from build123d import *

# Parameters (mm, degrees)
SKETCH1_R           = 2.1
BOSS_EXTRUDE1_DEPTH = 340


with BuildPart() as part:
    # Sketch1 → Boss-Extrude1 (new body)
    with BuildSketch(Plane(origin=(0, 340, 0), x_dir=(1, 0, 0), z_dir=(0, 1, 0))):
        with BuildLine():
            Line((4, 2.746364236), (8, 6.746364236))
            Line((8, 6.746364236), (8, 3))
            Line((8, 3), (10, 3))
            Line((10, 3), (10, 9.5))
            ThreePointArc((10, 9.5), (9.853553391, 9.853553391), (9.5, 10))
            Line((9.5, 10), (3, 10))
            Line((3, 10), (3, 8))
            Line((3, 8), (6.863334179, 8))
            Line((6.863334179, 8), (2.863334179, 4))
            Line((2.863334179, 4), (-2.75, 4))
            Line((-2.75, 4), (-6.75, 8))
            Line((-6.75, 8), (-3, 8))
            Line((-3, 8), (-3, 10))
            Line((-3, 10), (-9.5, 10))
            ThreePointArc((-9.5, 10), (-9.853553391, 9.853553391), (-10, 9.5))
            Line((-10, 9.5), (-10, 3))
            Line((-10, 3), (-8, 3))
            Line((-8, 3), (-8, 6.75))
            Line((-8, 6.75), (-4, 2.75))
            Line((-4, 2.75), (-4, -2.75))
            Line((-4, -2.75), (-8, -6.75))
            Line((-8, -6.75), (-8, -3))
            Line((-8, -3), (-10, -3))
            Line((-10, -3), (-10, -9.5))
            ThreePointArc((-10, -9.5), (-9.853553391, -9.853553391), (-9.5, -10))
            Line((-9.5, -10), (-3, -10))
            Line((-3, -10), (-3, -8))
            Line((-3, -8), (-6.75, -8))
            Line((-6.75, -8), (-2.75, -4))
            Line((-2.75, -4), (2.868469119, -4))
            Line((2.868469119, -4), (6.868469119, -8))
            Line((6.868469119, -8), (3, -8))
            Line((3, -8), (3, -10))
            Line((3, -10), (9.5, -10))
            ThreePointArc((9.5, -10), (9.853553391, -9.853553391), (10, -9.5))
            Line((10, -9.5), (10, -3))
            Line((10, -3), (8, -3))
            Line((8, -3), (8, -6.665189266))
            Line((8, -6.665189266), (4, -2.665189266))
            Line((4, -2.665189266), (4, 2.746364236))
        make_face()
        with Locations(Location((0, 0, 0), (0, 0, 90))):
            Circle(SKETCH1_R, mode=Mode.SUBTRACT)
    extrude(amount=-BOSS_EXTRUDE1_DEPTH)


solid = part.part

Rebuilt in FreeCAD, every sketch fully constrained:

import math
import FreeCAD as App
import Part
import Sketcher
from FreeCAD import Vector

doc = App.newDocument("Part")
params = doc.addObject("Spreadsheet::Sheet", "Params")
for row, (alias, value) in enumerate([
    ("sketch1_diameter", "4.2 mm"),
    ("sketch1_radius", "0.5 mm"),
    ("sketch1_width", "2 mm"),
    ("sketch1_width2", "6.5 mm"),
    ("sketch1_height", "5.5 mm"),
    ("pad1_length", "340 mm"),
], start=1):
    params.set(f"A{row}", alias)
    params.set(f"B{row}", "=" + value)
    params.setAlias(f"B{row}", alias)

body = doc.addObject("PartDesign::Body", "Body")

sketch1 = body.newObject("Sketcher::SketchObject", "Sketch")
sketch1.AttachmentSupport = (doc.getObject("XZ_Plane"), [""])
sketch1.MapMode = "FlatFace"
sketch1.AttachmentOffset = App.Placement(Vector(0, 0, -340), App.Rotation())
sketch1.addGeometry([
    Part.LineSegment(Vector(4, -2.75, 0), Vector(8, -6.75, 0)),
    Part.LineSegment(Vector(8, -6.75, 0), Vector(8, -3, 0)),
    Part.LineSegment(Vector(8, -3, 0), Vector(10, -3, 0)),
    Part.LineSegment(Vector(10, -3, 0), Vector(10, -9.5, 0)),
    Part.ArcOfCircle(Part.Circle(Vector(9.5, -9.5, 0), Vector(0, 0, 1), 0.5), math.radians(-90), math.radians(0)),
    Part.LineSegment(Vector(9.5, -10, 0), Vector(3, -10, 0)),
    Part.LineSegment(Vector(3, -10, 0), Vector(3, -8, 0)),
    Part.LineSegment(Vector(3, -8, 0), Vector(6.86, -8, 0)),
    Part.LineSegment(Vector(6.86, -8, 0), Vector(2.86, -4, 0)),
    Part.LineSegment(Vector(2.86, -4, 0), Vector(-2.75, -4, 0)),
    Part.LineSegment(Vector(-2.75, -4, 0), Vector(-6.75, -8, 0)),
    Part.LineSegment(Vector(-6.75, -8, 0), Vector(-3, -8, 0)),
    Part.LineSegment(Vector(-3, -8, 0), Vector(-3, -10, 0)),
    Part.LineSegment(Vector(-3, -10, 0), Vector(-9.5, -10, 0)),
    Part.ArcOfCircle(Part.Circle(Vector(-9.5, -9.5, 0), Vector(0, 0, 1), 0.5), math.radians(180), math.radians(270)),
    Part.LineSegment(Vector(-10, -9.5, 0), Vector(-10, -3, 0)),
    Part.LineSegment(Vector(-10, -3, 0), Vector(-8, -3, 0)),
    Part.LineSegment(Vector(-8, -3, 0), Vector(-8, -6.75, 0)),
    Part.LineSegment(Vector(-8, -6.75, 0), Vector(-4, -2.75, 0)),
    Part.LineSegment(Vector(-4, -2.75, 0), Vector(-4, 2.75, 0)),
    Part.LineSegment(Vector(-4, 2.75, 0), Vector(-8, 6.75, 0)),
    Part.LineSegment(Vector(-8, 6.75, 0), Vector(-8, 3, 0)),
    Part.LineSegment(Vector(-8, 3, 0), Vector(-10, 3, 0)),
    Part.LineSegment(Vector(-10, 3, 0), Vector(-10, 9.5, 0)),
    Part.ArcOfCircle(Part.Circle(Vector(-9.5, 9.5, 0), Vector(0, 0, 1), 0.5), math.radians(90), math.radians(180)),
    Part.LineSegment(Vector(-9.5, 10, 0), Vector(-3, 10, 0)),
    Part.LineSegment(Vector(-3, 10, 0), Vector(-3, 8, 0)),
    Part.LineSegment(Vector(-3, 8, 0), Vector(-6.75, 8, 0)),
    Part.LineSegment(Vector(-6.75, 8, 0), Vector(-2.75, 4, 0)),
    Part.LineSegment(Vector(-2.75, 4, 0), Vector(2.87, 4, 0)),
    Part.LineSegment(Vector(2.87, 4, 0), Vector(6.87, 8, 0)),
    Part.LineSegment(Vector(6.87, 8, 0), Vector(3, 8, 0)),
    Part.LineSegment(Vector(3, 8, 0), Vector(3, 10, 0)),
    Part.LineSegment(Vector(3, 10, 0), Vector(9.5, 10, 0)),
    Part.ArcOfCircle(Part.Circle(Vector(9.5, 9.5, 0), Vector(0, 0, 1), 0.5), math.radians(0), math.radians(90)),
    Part.LineSegment(Vector(10, 9.5, 0), Vector(10, 3, 0)),
    Part.LineSegment(Vector(10, 3, 0), Vector(8, 3, 0)),
    Part.LineSegment(Vector(8, 3, 0), Vector(8, 6.67, 0)),
    Part.LineSegment(Vector(8, 6.67, 0), Vector(4, 2.67, 0)),
    Part.LineSegment(Vector(4, 2.67, 0), Vector(4, -2.75, 0)),
    Part.Circle(Vector(0, 0, 0), Vector(0, 0, 1), 2.1),
], False)
sketch1.addConstraint([
    Sketcher.Constraint("Coincident", 0, 2, 1, 1),
    Sketcher.Constraint("Coincident", 1, 2, 2, 1),
    Sketcher.Constraint("Coincident", 2, 2, 3, 1),
    Sketcher.Constraint("Tangent", 3, 2, 4, 2),
    Sketcher.Constraint("Tangent", 4, 1, 5, 1),
    Sketcher.Constraint("Coincident", 5, 2, 6, 1),
    Sketcher.Constraint("Coincident", 6, 2, 7, 1),
    Sketcher.Constraint("Coincident", 7, 2, 8, 1),
    Sketcher.Constraint("Coincident", 8, 2, 9, 1),
    Sketcher.Constraint("Coincident", 9, 2, 10, 1),
    Sketcher.Constraint("Coincident", 10, 2, 11, 1),
    Sketcher.Constraint("Coincident", 11, 2, 12, 1),
    Sketcher.Constraint("Coincident", 12, 2, 13, 1),
    Sketcher.Constraint("Tangent", 13, 2, 14, 2),
    Sketcher.Constraint("Tangent", 14, 1, 15, 1),
    Sketcher.Constraint("Coincident", 15, 2, 16, 1),
    Sketcher.Constraint("Coincident", 16, 2, 17, 1),
    Sketcher.Constraint("Coincident", 17, 2, 18, 1),
    Sketcher.Constraint("Coincident", 18, 2, 19, 1),
    Sketcher.Constraint("Coincident", 19, 2, 20, 1),
    Sketcher.Constraint("Coincident", 20, 2, 21, 1),
    Sketcher.Constraint("Coincident", 21, 2, 22, 1),
    Sketcher.Constraint("Coincident", 22, 2, 23, 1),
    Sketcher.Constraint("Tangent", 23, 2, 24, 2),
    Sketcher.Constraint("Tangent", 24, 1, 25, 1),
    Sketcher.Constraint("Coincident", 25, 2, 26, 1),
    Sketcher.Constraint("Coincident", 26, 2, 27, 1),
    Sketcher.Constraint("Coincident", 27, 2, 28, 1),
    Sketcher.Constraint("Coincident", 28, 2, 29, 1),
    Sketcher.Constraint("Coincident", 29, 2, 30, 1),
    Sketcher.Constraint("Coincident", 30, 2, 31, 1),
    Sketcher.Constraint("Coincident", 31, 2, 32, 1),
    Sketcher.Constraint("Coincident", 32, 2, 33, 1),
    Sketcher.Constraint("Tangent", 33, 2, 34, 2),
    Sketcher.Constraint("Tangent", 34, 1, 35, 1),
    Sketcher.Constraint("Coincident", 35, 2, 36, 1),
    Sketcher.Constraint("Coincident", 36, 2, 37, 1),
    Sketcher.Constraint("Coincident", 37, 2, 38, 1),
    Sketcher.Constraint("Coincident", 38, 2, 39, 1),
    Sketcher.Constraint("Coincident", 39, 2, 0, 1),
    Sketcher.Constraint("Vertical", 1),
    Sketcher.Constraint("Horizontal", 2),
    Sketcher.Constraint("Vertical", 3),
    Sketcher.Constraint("Horizontal", 5),
    Sketcher.Constraint("Vertical", 6),
    Sketcher.Constraint("Horizontal", 7),
    Sketcher.Constraint("Horizontal", 9),
    Sketcher.Constraint("Horizontal", 11),
    Sketcher.Constraint("Vertical", 12),
    Sketcher.Constraint("Horizontal", 13),
    Sketcher.Constraint("Vertical", 15),
    Sketcher.Constraint("Horizontal", 16),
    Sketcher.Constraint("Vertical", 17),
    Sketcher.Constraint("Vertical", 19),
    Sketcher.Constraint("Vertical", 21),
    Sketcher.Constraint("Horizontal", 22),
    Sketcher.Constraint("Vertical", 23),
    Sketcher.Constraint("Horizontal", 25),
    Sketcher.Constraint("Vertical", 26),
    Sketcher.Constraint("Horizontal", 27),
    Sketcher.Constraint("Horizontal", 29),
    Sketcher.Constraint("Horizontal", 31),
    Sketcher.Constraint("Vertical", 32),
    Sketcher.Constraint("Horizontal", 33),
    Sketcher.Constraint("Vertical", 35),
    Sketcher.Constraint("Horizontal", 36),
    Sketcher.Constraint("Vertical", 37),
    Sketcher.Constraint("Vertical", 39),
    Sketcher.Constraint("Coincident", 40, 3, -1, 1),
    Sketcher.Constraint("Equal", 4, 14),
    Sketcher.Constraint("Equal", 14, 24),
    Sketcher.Constraint("Equal", 24, 34),
    Sketcher.Constraint("Symmetric", 4, 3, 24, 3, -1, 1),
    Sketcher.Constraint("Symmetric", 14, 3, 34, 3, -1, 1),
    Sketcher.Constraint("Symmetric", 1, 2, 21, 2, -1, 1),
    Sketcher.Constraint("Symmetric", 6, 2, 26, 2, -1, 1),
    Sketcher.Constraint("Symmetric", 11, 2, 31, 2, -1, 1),
    Sketcher.Constraint("Symmetric", 16, 2, 36, 2, -1, 1),
    Sketcher.Constraint("Symmetric", 4, 3, 14, 3, -2),
    Sketcher.Constraint("Symmetric", 6, 2, 11, 2, -2),
    Sketcher.Constraint("Symmetric", 1, 2, 16, 2, -2),
    Sketcher.Constraint("Symmetric", 9, 2, 28, 2, -1),
    Sketcher.Constraint("Parallel", 0, 8),
    Sketcher.Constraint("Perpendicular", 8, 10),
    Sketcher.Constraint("Parallel", 10, 18),
    Sketcher.Constraint("Perpendicular", 18, 20),
    Sketcher.Constraint("Parallel", 20, 28),
    Sketcher.Constraint("Perpendicular", 28, 30),
    Sketcher.Constraint("Parallel", 30, 38),
    Sketcher.Constraint("Vertical", 10, 2, 27, 2),
    Sketcher.Constraint("Equal", 33, 3),
    Sketcher.Constraint("Equal", 36, 6),
    Sketcher.Constraint("Equal", 27, 17),
    Sketcher.Constraint("Equal", 17, 21),
    Sketcher.Constraint("Equal", 0, 8),
    Sketcher.Constraint("Equal", 10, 18),
    Sketcher.Constraint("Diameter", 40, 4.2),
    Sketcher.Constraint("Radius", 4, 0.5),
    Sketcher.Constraint("DistanceX", 2, 1, 2, 2, 2.0),
    Sketcher.Constraint("DistanceX", 5, 2, 5, 1, 6.5),
    Sketcher.Constraint("DistanceY", 19, 1, 19, 2, 5.5),
    Sketcher.Constraint("DistanceX", -1, 1, 0, 2, 8.0),
    Sketcher.Constraint("DistanceY", 1, 2, -1, 1, 3.0),
    Sketcher.Constraint("DistanceY", 8, 2, -1, 1, 4.0),
    Sketcher.Constraint("DistanceX", 29, 1, 29, 2, 5.618469),
    Sketcher.Constraint("DistanceY", 37, 1, 37, 2, 3.665189),
    Sketcher.Constraint("DistanceX", 7, 1, 7, 2, 3.863334),
    Sketcher.Constraint("DistanceY", 1, 1, 1, 2, 3.746364),
])
sketch1.setExpression("Constraints[96]", "Params.sketch1_diameter")
sketch1.setExpression("Constraints[97]", "Params.sketch1_radius")
sketch1.setExpression("Constraints[98]", "Params.sketch1_width")
sketch1.setExpression("Constraints[99]", "Params.sketch1_width2")
sketch1.setExpression("Constraints[100]", "Params.sketch1_height")
pad1 = body.newObject("PartDesign::Pad", "Pad")
pad1.Profile = sketch1
pad1.setExpression("Length", "Params.pad1_length")

doc.recompute()
